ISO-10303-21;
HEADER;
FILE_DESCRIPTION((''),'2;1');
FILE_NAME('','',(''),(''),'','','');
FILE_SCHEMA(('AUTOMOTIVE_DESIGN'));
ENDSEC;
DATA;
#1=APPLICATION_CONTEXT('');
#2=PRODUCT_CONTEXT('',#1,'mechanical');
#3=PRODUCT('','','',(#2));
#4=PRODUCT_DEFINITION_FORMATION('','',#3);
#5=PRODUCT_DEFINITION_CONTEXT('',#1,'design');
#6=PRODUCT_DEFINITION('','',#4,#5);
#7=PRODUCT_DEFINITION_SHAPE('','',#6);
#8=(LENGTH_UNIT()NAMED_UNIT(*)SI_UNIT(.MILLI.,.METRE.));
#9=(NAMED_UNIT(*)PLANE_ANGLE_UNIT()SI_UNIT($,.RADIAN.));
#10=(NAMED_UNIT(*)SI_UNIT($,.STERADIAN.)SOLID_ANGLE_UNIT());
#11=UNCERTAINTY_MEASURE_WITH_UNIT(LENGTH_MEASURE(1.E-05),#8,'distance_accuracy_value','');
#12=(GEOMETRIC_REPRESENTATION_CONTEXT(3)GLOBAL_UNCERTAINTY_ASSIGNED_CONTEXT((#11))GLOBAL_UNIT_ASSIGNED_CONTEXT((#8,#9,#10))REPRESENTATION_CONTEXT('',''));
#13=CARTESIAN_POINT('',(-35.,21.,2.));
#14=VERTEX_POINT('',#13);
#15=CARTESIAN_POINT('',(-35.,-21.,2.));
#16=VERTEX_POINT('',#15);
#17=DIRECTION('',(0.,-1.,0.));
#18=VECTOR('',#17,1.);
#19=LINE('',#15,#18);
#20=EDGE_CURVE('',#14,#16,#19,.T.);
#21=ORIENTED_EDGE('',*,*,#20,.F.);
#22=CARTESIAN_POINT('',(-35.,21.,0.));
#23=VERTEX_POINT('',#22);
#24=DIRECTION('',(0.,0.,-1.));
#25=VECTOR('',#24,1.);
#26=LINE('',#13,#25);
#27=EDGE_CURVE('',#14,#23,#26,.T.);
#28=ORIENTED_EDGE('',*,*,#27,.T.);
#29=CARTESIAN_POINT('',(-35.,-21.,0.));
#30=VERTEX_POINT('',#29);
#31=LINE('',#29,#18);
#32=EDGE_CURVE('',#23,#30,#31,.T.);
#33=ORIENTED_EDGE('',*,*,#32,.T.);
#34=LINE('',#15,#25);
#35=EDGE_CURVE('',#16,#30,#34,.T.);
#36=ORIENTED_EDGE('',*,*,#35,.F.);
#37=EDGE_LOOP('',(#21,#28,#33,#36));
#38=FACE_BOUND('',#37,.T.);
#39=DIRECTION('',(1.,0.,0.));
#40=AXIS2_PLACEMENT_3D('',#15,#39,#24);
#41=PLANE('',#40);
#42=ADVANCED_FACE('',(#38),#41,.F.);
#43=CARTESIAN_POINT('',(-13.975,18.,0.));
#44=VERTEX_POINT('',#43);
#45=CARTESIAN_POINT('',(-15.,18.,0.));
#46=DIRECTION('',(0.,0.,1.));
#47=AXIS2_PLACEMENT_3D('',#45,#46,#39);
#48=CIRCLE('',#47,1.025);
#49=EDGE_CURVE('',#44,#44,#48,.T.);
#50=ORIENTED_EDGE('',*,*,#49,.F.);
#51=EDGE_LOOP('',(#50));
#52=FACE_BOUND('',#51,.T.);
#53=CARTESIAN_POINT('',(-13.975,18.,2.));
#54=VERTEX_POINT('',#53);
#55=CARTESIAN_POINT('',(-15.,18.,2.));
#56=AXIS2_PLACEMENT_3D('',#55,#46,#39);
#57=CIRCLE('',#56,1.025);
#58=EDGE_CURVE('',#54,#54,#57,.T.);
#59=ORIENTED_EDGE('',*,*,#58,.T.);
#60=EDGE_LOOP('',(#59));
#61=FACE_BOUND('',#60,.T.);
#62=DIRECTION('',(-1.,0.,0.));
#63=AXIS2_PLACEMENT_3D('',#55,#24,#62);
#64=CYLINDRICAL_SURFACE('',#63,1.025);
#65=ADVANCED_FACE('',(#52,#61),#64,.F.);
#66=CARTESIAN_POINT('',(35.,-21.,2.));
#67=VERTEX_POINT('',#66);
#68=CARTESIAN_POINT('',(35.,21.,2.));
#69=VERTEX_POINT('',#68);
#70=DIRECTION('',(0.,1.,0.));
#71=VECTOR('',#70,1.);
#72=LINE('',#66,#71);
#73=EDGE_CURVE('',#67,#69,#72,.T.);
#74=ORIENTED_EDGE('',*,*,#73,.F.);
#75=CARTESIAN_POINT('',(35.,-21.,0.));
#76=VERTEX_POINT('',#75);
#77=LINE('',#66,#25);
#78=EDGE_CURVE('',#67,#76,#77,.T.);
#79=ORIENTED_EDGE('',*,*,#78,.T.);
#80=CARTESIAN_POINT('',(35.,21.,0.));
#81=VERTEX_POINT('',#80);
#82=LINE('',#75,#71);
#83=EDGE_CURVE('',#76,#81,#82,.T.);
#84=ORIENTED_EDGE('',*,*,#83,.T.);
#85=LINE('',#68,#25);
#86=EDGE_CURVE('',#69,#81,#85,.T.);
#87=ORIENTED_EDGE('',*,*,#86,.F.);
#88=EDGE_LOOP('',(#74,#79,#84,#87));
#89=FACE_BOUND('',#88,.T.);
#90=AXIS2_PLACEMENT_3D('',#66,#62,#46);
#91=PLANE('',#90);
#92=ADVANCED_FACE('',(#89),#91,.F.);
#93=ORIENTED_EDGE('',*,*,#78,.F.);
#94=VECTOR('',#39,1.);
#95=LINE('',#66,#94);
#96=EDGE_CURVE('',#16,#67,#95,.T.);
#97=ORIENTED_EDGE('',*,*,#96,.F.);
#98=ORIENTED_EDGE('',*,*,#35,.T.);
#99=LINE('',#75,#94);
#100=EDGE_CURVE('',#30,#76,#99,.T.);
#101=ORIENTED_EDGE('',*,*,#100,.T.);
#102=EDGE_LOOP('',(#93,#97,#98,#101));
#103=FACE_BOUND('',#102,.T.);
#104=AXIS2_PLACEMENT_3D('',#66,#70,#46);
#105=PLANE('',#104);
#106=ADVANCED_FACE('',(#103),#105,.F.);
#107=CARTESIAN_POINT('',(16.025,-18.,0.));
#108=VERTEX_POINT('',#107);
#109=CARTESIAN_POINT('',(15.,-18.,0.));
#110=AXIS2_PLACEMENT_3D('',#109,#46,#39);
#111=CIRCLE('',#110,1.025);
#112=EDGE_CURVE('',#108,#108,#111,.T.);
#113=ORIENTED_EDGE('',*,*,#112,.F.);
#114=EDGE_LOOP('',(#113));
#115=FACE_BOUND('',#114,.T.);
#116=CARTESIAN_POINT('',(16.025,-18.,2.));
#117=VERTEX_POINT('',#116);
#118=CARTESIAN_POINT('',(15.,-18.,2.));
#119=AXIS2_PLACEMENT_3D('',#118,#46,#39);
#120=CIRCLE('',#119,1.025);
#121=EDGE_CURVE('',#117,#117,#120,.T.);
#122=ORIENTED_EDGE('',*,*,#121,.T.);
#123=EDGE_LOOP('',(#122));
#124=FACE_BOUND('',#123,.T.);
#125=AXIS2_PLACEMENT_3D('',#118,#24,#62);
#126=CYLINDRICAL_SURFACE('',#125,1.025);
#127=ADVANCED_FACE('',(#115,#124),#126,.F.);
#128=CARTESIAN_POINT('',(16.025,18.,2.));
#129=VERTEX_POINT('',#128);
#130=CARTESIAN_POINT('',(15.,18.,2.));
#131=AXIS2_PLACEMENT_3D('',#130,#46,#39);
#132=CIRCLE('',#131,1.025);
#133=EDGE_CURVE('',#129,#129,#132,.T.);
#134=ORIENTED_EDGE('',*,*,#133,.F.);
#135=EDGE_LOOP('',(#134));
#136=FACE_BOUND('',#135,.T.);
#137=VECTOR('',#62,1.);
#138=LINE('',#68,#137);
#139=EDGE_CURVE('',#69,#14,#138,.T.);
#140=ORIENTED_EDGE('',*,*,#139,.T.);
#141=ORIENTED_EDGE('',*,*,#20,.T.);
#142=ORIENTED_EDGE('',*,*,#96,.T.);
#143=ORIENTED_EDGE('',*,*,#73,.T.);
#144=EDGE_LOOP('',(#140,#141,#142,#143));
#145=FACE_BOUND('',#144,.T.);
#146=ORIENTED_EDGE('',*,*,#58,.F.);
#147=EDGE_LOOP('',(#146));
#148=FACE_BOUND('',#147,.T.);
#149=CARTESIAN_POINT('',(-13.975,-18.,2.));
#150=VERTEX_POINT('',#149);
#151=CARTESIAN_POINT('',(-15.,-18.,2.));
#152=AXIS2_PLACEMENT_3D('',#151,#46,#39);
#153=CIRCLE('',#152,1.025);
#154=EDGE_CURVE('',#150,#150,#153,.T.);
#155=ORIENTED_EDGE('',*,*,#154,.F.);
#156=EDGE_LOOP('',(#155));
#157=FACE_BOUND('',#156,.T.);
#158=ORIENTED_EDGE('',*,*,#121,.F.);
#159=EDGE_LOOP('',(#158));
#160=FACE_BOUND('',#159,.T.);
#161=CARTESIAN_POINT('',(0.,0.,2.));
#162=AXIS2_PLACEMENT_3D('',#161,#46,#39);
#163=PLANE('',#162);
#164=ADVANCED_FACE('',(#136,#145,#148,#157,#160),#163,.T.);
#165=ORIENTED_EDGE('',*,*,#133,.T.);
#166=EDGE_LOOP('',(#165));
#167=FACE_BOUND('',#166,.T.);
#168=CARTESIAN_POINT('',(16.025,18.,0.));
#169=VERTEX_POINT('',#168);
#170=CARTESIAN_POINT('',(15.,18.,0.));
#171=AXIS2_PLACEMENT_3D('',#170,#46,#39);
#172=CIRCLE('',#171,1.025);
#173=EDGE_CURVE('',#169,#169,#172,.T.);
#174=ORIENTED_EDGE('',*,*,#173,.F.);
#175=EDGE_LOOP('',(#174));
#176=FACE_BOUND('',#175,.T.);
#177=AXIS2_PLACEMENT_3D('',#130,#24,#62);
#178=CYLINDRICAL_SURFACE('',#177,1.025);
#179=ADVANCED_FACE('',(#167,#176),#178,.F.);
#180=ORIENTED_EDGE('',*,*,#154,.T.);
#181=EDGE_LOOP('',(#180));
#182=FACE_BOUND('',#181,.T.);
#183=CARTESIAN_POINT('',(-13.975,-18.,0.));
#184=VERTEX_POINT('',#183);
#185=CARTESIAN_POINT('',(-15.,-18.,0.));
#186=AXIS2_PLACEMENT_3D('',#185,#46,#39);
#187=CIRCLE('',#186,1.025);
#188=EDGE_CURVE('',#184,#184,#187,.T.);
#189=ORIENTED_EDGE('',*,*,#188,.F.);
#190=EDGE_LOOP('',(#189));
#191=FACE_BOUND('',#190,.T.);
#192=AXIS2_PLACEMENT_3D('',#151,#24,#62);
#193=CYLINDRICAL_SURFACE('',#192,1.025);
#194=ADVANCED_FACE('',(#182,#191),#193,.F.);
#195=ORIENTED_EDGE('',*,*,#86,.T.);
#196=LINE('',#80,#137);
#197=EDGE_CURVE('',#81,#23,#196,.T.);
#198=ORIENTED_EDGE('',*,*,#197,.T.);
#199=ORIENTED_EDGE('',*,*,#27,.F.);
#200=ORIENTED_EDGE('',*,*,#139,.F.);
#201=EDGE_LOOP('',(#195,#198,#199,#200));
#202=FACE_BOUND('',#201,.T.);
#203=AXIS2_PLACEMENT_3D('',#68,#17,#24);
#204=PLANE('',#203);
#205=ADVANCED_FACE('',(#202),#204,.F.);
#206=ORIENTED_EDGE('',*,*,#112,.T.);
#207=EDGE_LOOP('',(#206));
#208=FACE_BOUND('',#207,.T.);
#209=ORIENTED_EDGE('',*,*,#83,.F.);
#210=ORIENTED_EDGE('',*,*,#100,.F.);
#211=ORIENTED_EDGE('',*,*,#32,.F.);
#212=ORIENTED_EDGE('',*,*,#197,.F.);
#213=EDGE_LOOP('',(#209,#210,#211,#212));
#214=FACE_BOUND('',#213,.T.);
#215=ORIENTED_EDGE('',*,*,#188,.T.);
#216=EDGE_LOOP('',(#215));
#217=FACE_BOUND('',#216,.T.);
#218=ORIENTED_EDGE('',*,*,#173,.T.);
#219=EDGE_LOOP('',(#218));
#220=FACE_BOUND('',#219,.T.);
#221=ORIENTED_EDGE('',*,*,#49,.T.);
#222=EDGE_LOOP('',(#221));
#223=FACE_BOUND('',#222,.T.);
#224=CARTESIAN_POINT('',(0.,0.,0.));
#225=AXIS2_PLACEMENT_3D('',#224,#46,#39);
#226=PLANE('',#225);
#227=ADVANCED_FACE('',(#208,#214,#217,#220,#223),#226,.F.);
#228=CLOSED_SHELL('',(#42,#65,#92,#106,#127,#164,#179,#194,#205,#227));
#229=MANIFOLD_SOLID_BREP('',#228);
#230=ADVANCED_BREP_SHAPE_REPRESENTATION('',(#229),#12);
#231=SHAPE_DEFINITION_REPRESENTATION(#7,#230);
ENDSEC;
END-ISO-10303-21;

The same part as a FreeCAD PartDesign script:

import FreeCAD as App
import Part
import Sketcher
Q = App.Units.Quantity

doc = App.newDocument("Part")
params = doc.addObject("Spreadsheet::Sheet", "Params")
for row, (alias, value) in enumerate([
    ("sketch1_diameter", "2.05 mm"),
    ("sketch1_width", "70 mm"),
    ("sketch1_height", "42 mm"),
    ("pad1_length", "2 mm"),
], start=1):
    params.set(f"A{row}", alias)
    params.set(f"B{row}", "=" + value)
    params.setAlias(f"B{row}", alias)

body = doc.addObject("PartDesign::Body", "Body")

sketch1 = doc.addObject("Sketcher::SketchObject", "Sketch")
body.addObject(sketch1)
sketch1.AttachmentSupport = (doc.XY_Plane, [""])
sketch1.MapMode = "FlatFace"
sketch1.addGeometry([
    Part.LineSegment(App.Vector(-35, 21, 0), App.Vector(-35, -21, 0)),
    Part.LineSegment(App.Vector(-35, -21, 0), App.Vector(35, -21, 0)),
    Part.LineSegment(App.Vector(35, -21, 0), App.Vector(35, 21, 0)),
    Part.LineSegment(App.Vector(35, 21, 0), App.Vector(-35, 21, 0)),
    Part.Circle(App.Vector(-15, -18, 0), App.Vector(0, 0, 1), 1),
    Part.Circle(App.Vector(15, -18, 0), App.Vector(0, 0, 1), 1),
    Part.Circle(App.Vector(-15, 18, 0), App.Vector(0, 0, 1), 1),
    Part.Circle(App.Vector(15, 18, 0), App.Vector(0, 0, 1), 1),
], False)
sketch1.addConstraint([
    Sketcher.Constraint("Coincident", 0, 2, 1, 1),
    Sketcher.Constraint("Coincident", 1, 2, 2, 1),
    Sketcher.Constraint("Coincident", 2, 2, 3, 1),
    Sketcher.Constraint("Coincident", 3, 2, 0, 1),
    Sketcher.Constraint("Vertical", 0),
    Sketcher.Constraint("Horizontal", 1),
    Sketcher.Constraint("Vertical", 2),
    Sketcher.Constraint("Horizontal", 3),
    Sketcher.Constraint("Equal", 4, 5),
    Sketcher.Constraint("Equal", 5, 6),
    Sketcher.Constraint("Equal", 6, 7),
    Sketcher.Constraint("Symmetric", 5, 3, 6, 3, -1, 1),
    Sketcher.Constraint("Symmetric", 4, 3, 7, 3, -1, 1),
    Sketcher.Constraint("Symmetric", 0, 2, 2, 2, -1, 1),
    Sketcher.Constraint("Symmetric", 4, 3, 5, 3, -2),
    Sketcher.Constraint("Diameter", 4, Q("2.05 mm")),
    Sketcher.Constraint("DistanceX", 1, 1, 1, 2, Q("70 mm")),
    Sketcher.Constraint("DistanceY", 0, 2, 0, 1, Q("42 mm")),
    Sketcher.Constraint("DistanceX", 4, 3, -1, 1, Q("15 mm")),
    Sketcher.Constraint("DistanceY", 4, 3, -1, 1, Q("18 mm")),
])
sketch1.setExpression("Constraints[15]", "Params.sketch1_diameter")
sketch1.setExpression("Constraints[16]", "Params.sketch1_width")
sketch1.setExpression("Constraints[17]", "Params.sketch1_height")
pad1 = doc.addObject("PartDesign::Pad", "Pad")
body.addObject(pad1)
pad1.Profile = sketch1
pad1.setExpression("Length", "Params.pad1_length")

doc.recompute()
